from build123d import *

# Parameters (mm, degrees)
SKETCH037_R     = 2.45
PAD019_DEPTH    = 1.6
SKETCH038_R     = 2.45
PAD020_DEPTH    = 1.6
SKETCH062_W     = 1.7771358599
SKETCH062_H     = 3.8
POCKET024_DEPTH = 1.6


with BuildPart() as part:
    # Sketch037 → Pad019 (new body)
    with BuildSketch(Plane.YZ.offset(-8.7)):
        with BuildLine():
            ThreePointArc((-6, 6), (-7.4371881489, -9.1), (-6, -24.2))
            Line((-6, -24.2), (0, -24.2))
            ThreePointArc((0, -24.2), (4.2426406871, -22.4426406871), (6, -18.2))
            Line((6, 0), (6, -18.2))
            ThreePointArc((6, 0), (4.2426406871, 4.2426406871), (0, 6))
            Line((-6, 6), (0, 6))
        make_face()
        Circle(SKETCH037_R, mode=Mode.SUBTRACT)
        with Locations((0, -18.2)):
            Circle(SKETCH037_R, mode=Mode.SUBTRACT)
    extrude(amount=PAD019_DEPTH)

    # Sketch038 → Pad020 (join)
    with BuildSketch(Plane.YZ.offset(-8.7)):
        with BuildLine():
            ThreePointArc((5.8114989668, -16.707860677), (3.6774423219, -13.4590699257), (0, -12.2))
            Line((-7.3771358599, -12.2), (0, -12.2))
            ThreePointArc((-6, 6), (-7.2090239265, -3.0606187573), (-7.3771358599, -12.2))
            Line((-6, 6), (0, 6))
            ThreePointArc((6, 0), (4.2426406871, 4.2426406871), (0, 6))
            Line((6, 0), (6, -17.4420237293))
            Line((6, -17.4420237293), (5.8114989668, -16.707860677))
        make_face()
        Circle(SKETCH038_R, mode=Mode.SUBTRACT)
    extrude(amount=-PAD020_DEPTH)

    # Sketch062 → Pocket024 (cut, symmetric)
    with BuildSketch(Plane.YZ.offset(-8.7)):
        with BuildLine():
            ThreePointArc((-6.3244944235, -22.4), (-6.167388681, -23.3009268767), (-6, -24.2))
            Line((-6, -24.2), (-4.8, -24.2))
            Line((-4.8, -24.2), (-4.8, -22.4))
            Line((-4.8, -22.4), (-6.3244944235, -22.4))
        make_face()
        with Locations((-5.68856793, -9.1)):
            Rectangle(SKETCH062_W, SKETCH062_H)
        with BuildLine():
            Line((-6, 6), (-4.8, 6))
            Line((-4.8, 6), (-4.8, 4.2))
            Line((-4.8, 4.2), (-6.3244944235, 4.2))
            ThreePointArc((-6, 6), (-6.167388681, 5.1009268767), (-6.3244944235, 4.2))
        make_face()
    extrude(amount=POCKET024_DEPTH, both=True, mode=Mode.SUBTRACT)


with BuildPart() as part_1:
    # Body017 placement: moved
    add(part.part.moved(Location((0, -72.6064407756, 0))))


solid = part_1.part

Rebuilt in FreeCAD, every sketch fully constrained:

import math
import FreeCAD as App
import Part
import Sketcher
Q = App.Units.Quantity


def add_polygon(sketch, points):
    """Adds a closed chain of lines whose ends are joined by coincident constraints."""
    first, n = sketch.GeometryCount, len(points)
    for a, b in zip(points, points[1:] + points[:1]):
        sketch.addGeometry(Part.LineSegment(App.Vector(*a, 0), App.Vector(*b, 0)), False)
    for i in range(n):
        sketch.addConstraint(Sketcher.Constraint("Coincident", first + i, 2, first + (i + 1) % n, 1))

doc = App.newDocument("Part")
params = doc.addObject("Spreadsheet::Sheet", "Params")
for row, (alias, value) in enumerate([
    ("sketch1_radius", "6 mm"),
    ("sketch1_diameter", "4.9 mm"),
    ("sketch1_width", "6 mm"),
    ("sketch1_height", "18.2 mm"),
    ("pad1_length", "1.6 mm"),
    ("sketch2_radius", "6 mm"),
    ("sketch2_diameter", "4.9 mm"),
    ("sketch2_width", "6 mm"),
    ("pad2_length", "1.6 mm"),
    ("sketch3_width", "1.2 mm"),
    ("sketch3_height", "1.8 mm"),
    ("sketch3_height2", "3.8 mm"),
    ("pocket1_length", "3.2 mm"),
], start=1):
    params.set(f"A{row}", alias)
    params.set(f"B{row}", "=" + value)
    params.setAlias(f"B{row}", alias)

body = doc.addObject("PartDesign::Body", "Body")

# Sketch on YZ plane
sketch1 = doc.addObject("Sketcher::SketchObject", "Sketch")
body.addObject(sketch1)
sketch1.AttachmentSupport = (doc.YZ_Plane, [""])
sketch1.MapMode = "FlatFace"
sketch1.AttachmentOffset = App.Placement(App.Vector(0, 0, -8.7), App.Rotation())
sketch1.addGeometry([
    Part.ArcOfCircle(Part.Circle(App.Vector(72.606441, -9.1, 0), App.Vector(0, 0, 1), 80.043629), math.radians(169.126158), math.radians(190.873842)),  # 0
    Part.LineSegment(App.Vector(-6, -24.2, 0), App.Vector(0, -24.2, 0)),  # 1
    Part.ArcOfCircle(Part.Circle(App.Vector(0, -18.2, 0), App.Vector(0, 0, 1), 6), math.radians(-90), math.radians(0)),  # 2
    Part.LineSegment(App.Vector(6, -18.2, 0), App.Vector(6, 0, 0)),  # 3
    Part.ArcOfCircle(Part.Circle(App.Vector(0, 0, 0), App.Vector(0, 0, 1), 6), math.radians(0), math.radians(90)),  # 4
    Part.LineSegment(App.Vector(0, 6, 0), App.Vector(-6, 6, 0)),  # 5
    Part.Circle(App.Vector(0, -18.2, 0), App.Vector(0, 0, 1), 2.45),  # 6
    Part.Circle(App.Vector(0, 0, 0), App.Vector(0, 0, 1), 2.45),  # 7
], False)
sketch1.addConstraint([
    Sketcher.Constraint("Coincident", 0, 2, 1, 1),
    Sketcher.Constraint("Tangent", 1, 2, 2, 1),
    Sketcher.Constraint("Tangent", 2, 2, 3, 1),
    Sketcher.Constraint("Tangent", 3, 2, 4, 1),
    Sketcher.Constraint("Tangent", 4, 2, 5, 1),
    Sketcher.Constraint("Coincident", 5, 2, 0, 1),
    Sketcher.Constraint("Horizontal", 1),
    Sketcher.Constraint("Vertical", 3),
    Sketcher.Constraint("Horizontal", 5),
    Sketcher.Constraint("Coincident", 4, 3, -1, 1),
    Sketcher.Constraint("Coincident", 7, 3, -1, 1),
    Sketcher.Constraint("Coincident", 6, 3, 2, 3),
    Sketcher.Constraint("Equal", 2, 4),
    Sketcher.Constraint("Equal", 6, 7),
    Sketcher.Constraint("Vertical", 0, 2, 5, 2),
    Sketcher.Constraint("Radius", 2, 6.0),
    Sketcher.Constraint("Diameter", 6, 4.9),
    Sketcher.Constraint("DistanceX", 1, 1, 1, 2, 6.0),
    Sketcher.Constraint("DistanceY", 3, 1, 3, 2, 18.2),
    Sketcher.Constraint("Radius", 0, 80.043629),
])
sketch1.setExpression("Constraints[15]", "Params.sketch1_radius")
sketch1.setExpression("Constraints[16]", "Params.sketch1_diameter")
sketch1.setExpression("Constraints[17]", "Params.sketch1_width")
sketch1.setExpression("Constraints[18]", "Params.sketch1_height")
pad1 = doc.addObject("PartDesign::Pad", "Pad")
body.addObject(pad1)
pad1.Profile = sketch1
pad1.setExpression("Length", "Params.pad1_length")

# Sketch on YZ plane
sketch2 = doc.addObject("Sketcher::SketchObject", "Sketch001")
body.addObject(sketch2)
sketch2.AttachmentSupport = (doc.YZ_Plane, [""])
sketch2.MapMode = "FlatFace"
sketch2.AttachmentOffset = App.Placement(App.Vector(0, 0, -8.7), App.Rotation())
sketch2.addGeometry([
    Part.ArcOfCircle(Part.Circle(App.Vector(0, -18.2, 0), App.Vector(0, 0, 1), 6), math.radians(14.4), math.radians(90)),  # 0
    Part.LineSegment(App.Vector(5.811499, -16.707861, 0), App.Vector(6, -17.442024, 0)),  # 1
    Part.LineSegment(App.Vector(6, -17.442024, 0), App.Vector(6, 0, 0)),  # 2
    Part.ArcOfCircle(Part.Circle(App.Vector(0, 0, 0), App.Vector(0, 0, 1), 6), math.radians(0), math.radians(90)),  # 3
    Part.LineSegment(App.Vector(0, 6, 0), App.Vector(-6, 6, 0)),  # 4
    Part.ArcOfCircle(Part.Circle(App.Vector(72.606441, -9.1, 0), App.Vector(0, 0, 1), 80.043629), math.radians(169.126158), math.radians(182.219556)),  # 5
    Part.LineSegment(App.Vector(-7.377136, -12.2, 0), App.Vector(0, -12.2, 0)),  # 6
    Part.Circle(App.Vector(0, 0, 0), App.Vector(0, 0, 1), 2.45),  # 7
], False)
sketch2.addConstraint([
    Sketcher.Constraint("Tangent", 0, 1, 1, 1),
    Sketcher.Constraint("Coincident", 1, 2, 2, 1),
    Sketcher.Constraint("Tangent", 2, 2, 3, 1),
    Sketcher.Constraint("Tangent", 3, 2, 4, 1),
    Sketcher.Constraint("Coincident", 4, 2, 5, 1),
    Sketcher.Constraint("Coincident", 5, 2, 6, 1),
    Sketcher.Constraint("Tangent", 6, 2, 0, 2),
    Sketcher.Constraint("Vertical", 2),
    Sketcher.Constraint("Horizontal", 4),
    Sketcher.Constraint("Horizontal", 6),
    Sketcher.Constraint("Coincident", 3, 3, -1, 1),
    Sketcher.Constraint("Coincident", 7, 3, -1, 1),
    Sketcher.Constraint("Equal", 0, 3),
    Sketcher.Constraint("PointOnObject", 0, 3, -2),
    Sketcher.Constraint("Radius", 0, 6.0),
    Sketcher.Constraint("Diameter", 7, 4.9),
    Sketcher.Constraint("DistanceX", 4, 2, 4, 1, 6.0),
    Sketcher.Constraint("Angle", 1, Q("-75.6 deg")),
    Sketcher.Constraint("DistanceY", 0, 3, -1, 1, 18.2),
    Sketcher.Constraint("DistanceY", 5, 3, -1, 1, 9.1),
    Sketcher.Constraint("Radius", 5, 80.043629),
])
sketch2.setExpression("Constraints[14]", "Params.sketch2_radius")
sketch2.setExpression("Constraints[15]", "Params.sketch2_diameter")
sketch2.setExpression("Constraints[16]", "Params.sketch2_width")
pad2 = doc.addObject("PartDesign::Pad", "Pad001")
body.addObject(pad2)
pad2.Profile = sketch2
pad2.setExpression("Length", "Params.pad2_length")
pad2.Reversed = True

# Sketch on YZ plane
sketch3 = doc.addObject("Sketcher::SketchObject", "Sketch002")
body.addObject(sketch3)
sketch3.AttachmentSupport = (doc.YZ_Plane, [""])
sketch3.MapMode = "FlatFace"
sketch3.AttachmentOffset = App.Placement(App.Vector(0, 0, -8.7), App.Rotation())
sketch3.addGeometry(Part.ArcOfCircle(Part.Circle(App.Vector(72.60644, -9.1, 0), App.Vector(0, 0, 1), 80.043628), math.radians(-170.435408), math.radians(-169.126158)), False)  # 0
sketch3.addGeometry(Part.LineSegment(App.Vector(-6, -24.2, 0), App.Vector(-4.8, -24.2, 0)), False)  # 1
sketch3.addGeometry(Part.LineSegment(App.Vector(-4.8, -24.2, 0), App.Vector(-4.8, -22.4, 0)), False)  # 2
sketch3.addGeometry(Part.LineSegment(App.Vector(-4.8, -22.4, 0), App.Vector(-6.324494, -22.4, 0)), False)  # 3
add_polygon(sketch3, [(-6.577136, -7.2), (-6.577136, -11), (-4.8, -11), (-4.8, -7.2)])  # lines 4-7
sketch3.addGeometry(Part.LineSegment(App.Vector(-4.8, 6, 0), App.Vector(-6, 6, 0)), False)  # 8
sketch3.addGeometry(Part.ArcOfCircle(Part.Circle(App.Vector(72.60644, -9.1, 0), App.Vector(0, 0, 1), 80.043628), math.radians(169.126158), math.radians(170.435408)), False)  # 9
sketch3.addGeometry(Part.LineSegment(App.Vector(-6.324494, 4.2, 0), App.Vector(-4.8, 4.2, 0)), False)  # 10
sketch3.addGeometry(Part.LineSegment(App.Vector(-4.8, 4.2, 0), App.Vector(-4.8, 6, 0)), False)  # 11
sketch3.addConstraint([
    Sketcher.Constraint("Coincident", 0, 2, 1, 1),
    Sketcher.Constraint("Coincident", 1, 2, 2, 1),
    Sketcher.Constraint("Coincident", 2, 2, 3, 1),
    Sketcher.Constraint("Coincident", 3, 2, 0, 1),
    Sketcher.Constraint("Coincident", 8, 2, 9, 1),
    Sketcher.Constraint("Coincident", 9, 2, 10, 1),
    Sketcher.Constraint("Coincident", 10, 2, 11, 1),
    Sketcher.Constraint("Coincident", 11, 2, 8, 1),
    Sketcher.Constraint("Horizontal", 1),
    Sketcher.Constraint("Vertical", 2),
    Sketcher.Constraint("Horizontal", 3),
    Sketcher.Constraint("Vertical", 4),
    Sketcher.Constraint("Horizontal", 5),
    Sketcher.Constraint("Vertical", 6),
    Sketcher.Constraint("Horizontal", 7),
    Sketcher.Constraint("Horizontal", 8),
    Sketcher.Constraint("Horizontal", 10),
    Sketcher.Constraint("Vertical", 11),
    Sketcher.Constraint("Coincident", 9, 3, 0, 3),
    Sketcher.Constraint("Equal", 0, 9),
    Sketcher.Constraint("Vertical", 2, 2, 5, 2),
    Sketcher.Constraint("Vertical", 0, 2, 8, 2),
    Sketcher.Constraint("Vertical", 3, 2, 9, 2),
    Sketcher.Constraint("Vertical", 6, 2, 10, 2),
    Sketcher.Constraint("DistanceX", 1, 1, 1, 2, 1.2),
    Sketcher.Constraint("DistanceY", 2, 1, 2, 2, 1.8),
    Sketcher.Constraint("DistanceY", 4, 2, 4, 1, 3.8),
    Sketcher.Constraint("DistanceX", 0, 2, -1, 1, 6.0),
    Sketcher.Constraint("DistanceY", 4, 2, -1, 1, 11.0),
    Sketcher.Constraint("DistanceY", -1, 1, 8, 2, 6.0),
    Sketcher.Constraint("DistanceY", 1, 2, 6, 2, 17.0),
    Sketcher.Constraint("Radius", 0, 80.043628),
    Sketcher.Constraint("DistanceX", 5, 1, 5, 2, 1.777136),
])
sketch3.setExpression("Constraints[28]", "Params.sketch3_width")
sketch3.setExpression("Constraints[29]", "Params.sketch3_height")
sketch3.setExpression("Constraints[30]", "Params.sketch3_height2")
pocket1 = doc.addObject("PartDesign::Pocket", "Pocket")
body.addObject(pocket1)
pocket1.Profile = sketch3
pocket1.setExpression("Length", "Params.pocket1_length")
pocket1.Midplane = True
body2 = doc.addObject("PartDesign::Body", "Body001")
doc.recompute()

body.Placement = App.Placement(App.Vector(0, -72.606441, 0), App.Rotation(App.Vector(0, 0, 1), 0))
boolean = doc.addObject("PartDesign::Boolean", "Boolean")
body2.addObject(boolean)
boolean.Type = "Fuse"
boolean.addObjects([body])

doc.recompute()
